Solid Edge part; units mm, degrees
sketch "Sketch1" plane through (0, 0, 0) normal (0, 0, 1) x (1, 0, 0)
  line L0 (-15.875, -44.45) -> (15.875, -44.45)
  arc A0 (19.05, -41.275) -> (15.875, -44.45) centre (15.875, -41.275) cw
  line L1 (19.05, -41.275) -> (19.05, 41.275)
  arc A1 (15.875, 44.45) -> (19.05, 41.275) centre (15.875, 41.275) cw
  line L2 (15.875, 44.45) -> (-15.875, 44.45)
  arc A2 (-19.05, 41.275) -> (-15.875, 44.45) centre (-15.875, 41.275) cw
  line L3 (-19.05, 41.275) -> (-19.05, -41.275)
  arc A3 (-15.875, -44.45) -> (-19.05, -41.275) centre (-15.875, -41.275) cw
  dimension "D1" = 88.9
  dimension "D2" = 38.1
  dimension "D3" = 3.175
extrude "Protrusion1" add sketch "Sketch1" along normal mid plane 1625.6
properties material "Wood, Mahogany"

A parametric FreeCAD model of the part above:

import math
import FreeCAD as App
import Part
import Sketcher
from FreeCAD import Vector
Q = App.Units.Quantity

doc = App.newDocument("Part")
body = doc.addObject("PartDesign::Body", "Body")

# Sketch on XY plane
sketch1 = body.newObject("Sketcher::SketchObject", "Sketch")
sketch1.AttachmentSupport = (doc.getObject("XY_Plane"), [""])
sketch1.MapMode = "FlatFace"
sketch1.addGeometry(Part.ArcOfCircle(Part.Circle(Vector(-15.875, -41.275, 0), Vector(0, 0, 1), 3.175), math.radians(180), math.radians(270)), False)
sketch1.addGeometry(Part.LineSegment(Vector(-15.875, -44.45, 0), Vector(15.875, -44.45, 0)), False)
sketch1.addGeometry(Part.ArcOfCircle(Part.Circle(Vector(15.875, -41.275, 0), Vector(0, 0, 1), 3.175), math.radians(-90), math.radians(0)), False)
sketch1.addGeometry(Part.LineSegment(Vector(19.05, -41.275, 0), Vector(19.05, 41.275, 0)), False)
sketch1.addGeometry(Part.ArcOfCircle(Part.Circle(Vector(15.875, 41.275, 0), Vector(0, 0, 1), 3.175), math.radians(0), math.radians(90)), False)
sketch1.addGeometry(Part.LineSegment(Vector(15.875, 44.45, 0), Vector(-15.875, 44.45, 0)), False)
sketch1.addGeometry(Part.ArcOfCircle(Part.Circle(Vector(-15.875, 41.275, 0), Vector(0, 0, 1), 3.175), math.radians(90), math.radians(180)), False)
sketch1.addGeometry(Part.LineSegment(Vector(-19.05, 41.275, 0), Vector(-19.05, -41.275, 0)), False)
sketch1.addConstraint(Sketcher.Constraint("Tangent", 0, 2, 1, 1))
sketch1.addConstraint(Sketcher.Constraint("Tangent", 1, 2, 2, 1))
sketch1.addConstraint(Sketcher.Constraint("Tangent", 2, 2, 3, 1))
sketch1.addConstraint(Sketcher.Constraint("Tangent", 3, 2, 4, 1))
sketch1.addConstraint(Sketcher.Constraint("Tangent", 4, 2, 5, 1))
sketch1.addConstraint(Sketcher.Constraint("Tangent", 5, 2, 6, 1))
sketch1.addConstraint(Sketcher.Constraint("Tangent", 6, 2, 7, 1))
sketch1.addConstraint(Sketcher.Constraint("Tangent", 7, 2, 0, 1))
sketch1.addConstraint(Sketcher.Constraint("Horizontal", 1))
sketch1.addConstraint(Sketcher.Constraint("Vertical", 3))
sketch1.addConstraint(Sketcher.Constraint("Horizontal", 5))
sketch1.addConstraint(Sketcher.Constraint("Vertical", 7))
sketch1.addConstraint(Sketcher.Constraint("Equal", 0, 2))
sketch1.addConstraint(Sketcher.Constraint("Equal", 2, 4))
sketch1.addConstraint(Sketcher.Constraint("Equal", 4, 6))
sketch1.addConstraint(Sketcher.Constraint("Symmetric", 0, 3, 4, 3, -1, 1))
sketch1.addConstraint(Sketcher.Constraint("DistanceX", -1, 1, 2, 2, Q("0.75 in")))
sketch1.addConstraint(Sketcher.Constraint("DistanceX", 0, 3, -1, 1, Q("0.625 in")))
sketch1.addConstraint(Sketcher.Constraint("DistanceY", 3, 1, 3, 2, Q("3.25 in")))
pad1 = body.newObject("PartDesign::Pad", "Pad")
pad1.Profile = sketch1
pad1.Length = Q("64 in")
pad1.Midplane = True

doc.recompute()
